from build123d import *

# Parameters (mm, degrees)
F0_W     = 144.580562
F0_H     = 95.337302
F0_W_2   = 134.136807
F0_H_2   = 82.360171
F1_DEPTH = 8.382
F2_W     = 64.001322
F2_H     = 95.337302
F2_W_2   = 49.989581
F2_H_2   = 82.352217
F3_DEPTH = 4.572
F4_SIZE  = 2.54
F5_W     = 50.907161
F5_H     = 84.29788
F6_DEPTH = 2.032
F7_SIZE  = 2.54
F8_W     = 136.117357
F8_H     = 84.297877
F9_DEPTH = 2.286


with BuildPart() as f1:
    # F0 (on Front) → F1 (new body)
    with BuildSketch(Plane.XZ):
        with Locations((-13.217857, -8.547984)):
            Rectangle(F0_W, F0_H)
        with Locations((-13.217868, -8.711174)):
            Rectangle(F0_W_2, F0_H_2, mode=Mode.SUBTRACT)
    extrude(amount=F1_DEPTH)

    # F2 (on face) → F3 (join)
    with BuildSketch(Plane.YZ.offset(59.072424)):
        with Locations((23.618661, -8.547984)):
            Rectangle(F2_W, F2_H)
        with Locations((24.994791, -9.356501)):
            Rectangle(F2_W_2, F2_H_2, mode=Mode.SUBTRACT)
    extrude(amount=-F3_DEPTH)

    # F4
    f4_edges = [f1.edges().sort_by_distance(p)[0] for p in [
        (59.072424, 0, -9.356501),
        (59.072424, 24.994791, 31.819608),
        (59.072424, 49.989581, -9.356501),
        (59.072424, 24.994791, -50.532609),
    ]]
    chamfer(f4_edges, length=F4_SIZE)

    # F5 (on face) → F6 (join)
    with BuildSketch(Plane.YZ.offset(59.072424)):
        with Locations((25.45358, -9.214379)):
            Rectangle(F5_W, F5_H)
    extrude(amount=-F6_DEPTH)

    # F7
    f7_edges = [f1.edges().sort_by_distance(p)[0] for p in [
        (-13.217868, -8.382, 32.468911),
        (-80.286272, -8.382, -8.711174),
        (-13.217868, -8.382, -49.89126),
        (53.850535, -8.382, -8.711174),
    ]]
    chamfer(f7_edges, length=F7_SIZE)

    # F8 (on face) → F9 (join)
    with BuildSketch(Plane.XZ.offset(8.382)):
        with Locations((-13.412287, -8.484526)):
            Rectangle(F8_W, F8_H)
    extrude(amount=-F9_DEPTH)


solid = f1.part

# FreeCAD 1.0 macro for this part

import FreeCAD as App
import Part
import Sketcher
Q = App.Units.Quantity


def edges_at(feature, points):
    """Names of the edges that pass closest to the given points."""
    edges = feature.Shape.Edges
    near = lambda p: min(range(len(edges)), key=lambda i: edges[i].distToShape(Part.Vertex(*p))[0])
    return sorted({f"Edge{near(p) + 1}" for p in points})

doc = App.newDocument("Part")
body = doc.addObject("PartDesign::Body", "Body")

sketch1 = body.newObject("Sketcher::SketchObject", "Sketch")
sketch1.AttachmentSupport = (doc.getObject("XZ_Plane"), [""])
sketch1.MapMode = "FlatFace"
sketch1.addGeometry([
    Part.LineSegment(App.Vector(-85.508138, 39.120667, 0), App.Vector(-85.508138, -56.216635, 0)),
    Part.LineSegment(App.Vector(-85.508138, -56.216635, 0), App.Vector(59.072424, -56.216635, 0)),
    Part.LineSegment(App.Vector(59.072424, -56.216635, 0), App.Vector(59.072424, 39.120667, 0)),
    Part.LineSegment(App.Vector(59.072424, 39.120667, 0), App.Vector(-85.508138, 39.120667, 0)),
    Part.LineSegment(App.Vector(53.850535, -49.891259, 0), App.Vector(-80.286271, -49.891259, 0)),
    Part.LineSegment(App.Vector(-80.286271, -49.891259, 0), App.Vector(-80.286271, 32.468911, 0)),
    Part.LineSegment(App.Vector(-80.286271, 32.468911, 0), App.Vector(53.850535, 32.468911, 0)),
    Part.LineSegment(App.Vector(53.850535, 32.468911, 0), App.Vector(53.850535, -49.891259, 0)),
], False)
sketch1.addConstraint([
    Sketcher.Constraint("Coincident", 0, 2, 1, 1),
    Sketcher.Constraint("Coincident", 1, 2, 2, 1),
    Sketcher.Constraint("Coincident", 2, 2, 3, 1),
    Sketcher.Constraint("Coincident", 3, 2, 0, 1),
    Sketcher.Constraint("Coincident", 4, 2, 5, 1),
    Sketcher.Constraint("Coincident", 5, 2, 6, 1),
    Sketcher.Constraint("Coincident", 6, 2, 7, 1),
    Sketcher.Constraint("Coincident", 7, 2, 4, 1),
    Sketcher.Constraint("Vertical", 0),
    Sketcher.Constraint("Horizontal", 1),
    Sketcher.Constraint("Vertical", 2),
    Sketcher.Constraint("Horizontal", 3),
    Sketcher.Constraint("Horizontal", 4),
    Sketcher.Constraint("Vertical", 5),
    Sketcher.Constraint("Horizontal", 6),
    Sketcher.Constraint("Vertical", 7),
    Sketcher.Constraint("DistanceY", 0, 2, 0, 1, Q("95.337302 mm")),
    Sketcher.Constraint("DistanceX", -1, 1, 6, 2, Q("2.1200998 in")),
    Sketcher.Constraint("DistanceX", 1, 1, 1, 2, Q("144.580562 mm")),
    Sketcher.Constraint("DistanceY", 5, 1, 5, 2, Q("82.360171 mm")),
    Sketcher.Constraint("DistanceX", 4, 2, 4, 1, Q("134.136807 mm")),
    Sketcher.Constraint("DistanceX", 0, 2, -1, 1, Q("85.508138 mm")),
    Sketcher.Constraint("DistanceY", 4, 2, -1, 1, Q("49.891259 mm")),
    Sketcher.Constraint("DistanceY", 0, 2, -1, 1, Q("56.216635 mm")),
])
pad1 = body.newObject("PartDesign::Pad", "Pad")
pad1.Profile = sketch1
pad1.Length = Q("0.33 in")

sketch2 = body.newObject("Sketcher::SketchObject", "Sketch001")
sketch2.AttachmentSupport = (doc.getObject("YZ_Plane"), [""])
sketch2.MapMode = "FlatFace"
sketch2.AttachmentOffset = App.Placement(App.Vector(0, 0, 59.072424), App.Rotation())
sketch2.addGeometry([
    Part.LineSegment(App.Vector(-8.382, 39.120667, 0), App.Vector(-8.382, -56.216635, 0)),
    Part.LineSegment(App.Vector(-8.382, -56.216635, 0), App.Vector(55.619322, -56.216635, 0)),
    Part.LineSegment(App.Vector(55.619322, -56.216635, 0), App.Vector(55.619322, 39.120667, 0)),
    Part.LineSegment(App.Vector(55.619322, 39.120667, 0), App.Vector(-8.382, 39.120667, 0)),
    Part.LineSegment(App.Vector(49.989581, -50.532609, 0), App.Vector(0, -50.532609, 0)),
    Part.LineSegment(App.Vector(0, -50.532609, 0), App.Vector(0, 31.819608, 0)),
    Part.LineSegment(App.Vector(0, 31.819608, 0), App.Vector(49.989581, 31.819608, 0)),
    Part.LineSegment(App.Vector(49.989581, 31.819608, 0), App.Vector(49.989581, -50.532609, 0)),
], False)
sketch2.addConstraint([
    Sketcher.Constraint("Coincident", 0, 2, 1, 1),
    Sketcher.Constraint("Coincident", 1, 2, 2, 1),
    Sketcher.Constraint("Coincident", 2, 2, 3, 1),
    Sketcher.Constraint("Coincident", 3, 2, 0, 1),
    Sketcher.Constraint("Coincident", 4, 2, 5, 1),
    Sketcher.Constraint("Coincident", 5, 2, 6, 1),
    Sketcher.Constraint("Coincident", 6, 2, 7, 1),
    Sketcher.Constraint("Coincident", 7, 2, 4, 1),
    Sketcher.Constraint("Vertical", 0),
    Sketcher.Constraint("Horizontal", 1),
    Sketcher.Constraint("Vertical", 2),
    Sketcher.Constraint("Horizontal", 3),
    Sketcher.Constraint("Horizontal", 4),
    Sketcher.Constraint("Vertical", 5),
    Sketcher.Constraint("Horizontal", 6),
    Sketcher.Constraint("Vertical", 7),
    Sketcher.Constraint("PointOnObject", 4, 2, -2),
    Sketcher.Constraint("DistanceX", 0, 2, -1, 1, Q("0.33 in")),
    Sketcher.Constraint("DistanceY", 0, 2, 0, 1, Q("95.337302 mm")),
    Sketcher.Constraint("DistanceX", 1, 1, 1, 2, Q("64.001322 mm")),
    Sketcher.Constraint("DistanceX", 4, 2, 4, 1, Q("49.989581 mm")),
    Sketcher.Constraint("DistanceY", 5, 1, 5, 2, Q("82.352217 mm")),
    Sketcher.Constraint("DistanceY", 4, 2, -1, 1, Q("50.532609 mm")),
    Sketcher.Constraint("DistanceY", 5, 2, 3, 2, Q("7.301059 mm")),
])
pad2 = body.newObject("PartDesign::Pad", "Pad001")
pad2.Profile = sketch2
pad2.Length = Q("0.18 in")
pad2.Reversed = True
doc.recompute()

chamfer = body.newObject("PartDesign::Chamfer", "Chamfer")
chamfer.Base = (pad2, edges_at(pad2, [
    (59.072, 0, -9.357),
    (59.072, 24.995, 31.82),
    (59.072, 49.99, -9.357),
    (59.072, 24.995, -50.533),
]))
chamfer.Size = Q("0.1 in")

sketch3 = body.newObject("Sketcher::SketchObject", "Sketch002")
sketch3.AttachmentSupport = (doc.getObject("YZ_Plane"), [""])
sketch3.MapMode = "FlatFace"
sketch3.AttachmentOffset = App.Placement(App.Vector(0, 0, 59.072424), App.Rotation())
sketch3.addGeometry([
    Part.LineSegment(App.Vector(0, 32.934561, 0), App.Vector(0, -51.363319, 0)),
    Part.LineSegment(App.Vector(0, -51.363319, 0), App.Vector(50.907161, -51.363319, 0)),
    Part.LineSegment(App.Vector(50.907161, -51.363319, 0), App.Vector(50.907161, 32.934561, 0)),
    Part.LineSegment(App.Vector(50.907161, 32.934561, 0), App.Vector(0, 32.934561, 0)),
], False)
sketch3.addConstraint([
    Sketcher.Constraint("Coincident", 0, 2, 1, 1),
    Sketcher.Constraint("Coincident", 1, 2, 2, 1),
    Sketcher.Constraint("Coincident", 2, 2, 3, 1),
    Sketcher.Constraint("Coincident", 3, 2, 0, 1),
    Sketcher.Constraint("Vertical", 0),
    Sketcher.Constraint("Horizontal", 1),
    Sketcher.Constraint("Vertical", 2),
    Sketcher.Constraint("Horizontal", 3),
    Sketcher.Constraint("PointOnObject", 0, 2, -2),
    Sketcher.Constraint("DistanceX", 1, 1, 1, 2, Q("50.907161 mm")),
    Sketcher.Constraint("DistanceY", 0, 2, 0, 1, Q("84.29788 mm")),
    Sketcher.Constraint("DistanceY", 0, 2, -1, 1, Q("51.363319 mm")),
])
pad3 = body.newObject("PartDesign::Pad", "Pad002")
pad3.Profile = sketch3
pad3.Length = Q("0.08 in")
pad3.Reversed = True
doc.recompute()

chamfer2 = body.newObject("PartDesign::Chamfer", "Chamfer001")
chamfer2.Base = (pad3, edges_at(pad3, [
    (-13.218, -8.382, 32.469),
    (-80.286, -8.382, -8.711),
    (-13.218, -8.382, -49.891),
    (53.851, -8.382, -8.711),
]))
chamfer2.Size = Q("0.1 in")

sketch4 = body.newObject("Sketcher::SketchObject", "Sketch003")
sketch4.AttachmentSupport = (doc.getObject("XZ_Plane"), [""])
sketch4.MapMode = "FlatFace"
sketch4.AttachmentOffset = App.Placement(App.Vector(0, 0, 0.33 * 25.4), App.Rotation())
sketch4.addGeometry([
    Part.LineSegment(App.Vector(-81.470966, 33.664412, 0), App.Vector(-81.470966, -50.633465, 0)),
    Part.LineSegment(App.Vector(-81.470966, -50.633465, 0), App.Vector(54.646392, -50.633465, 0)),
    Part.LineSegment(App.Vector(54.646392, -50.633465, 0), App.Vector(54.646392, 33.664412, 0)),
    Part.LineSegment(App.Vector(54.646392, 33.664412, 0), App.Vector(-81.470966, 33.664412, 0)),
], False)
sketch4.addConstraint([
    Sketcher.Constraint("Coincident", 0, 2, 1, 1),
    Sketcher.Constraint("Coincident", 1, 2, 2, 1),
    Sketcher.Constraint("Coincident", 2, 2, 3, 1),
    Sketcher.Constraint("Coincident", 3, 2, 0, 1),
    Sketcher.Constraint("Vertical", 0),
    Sketcher.Constraint("Horizontal", 1),
    Sketcher.Constraint("Vertical", 2),
    Sketcher.Constraint("Horizontal", 3),
    Sketcher.Constraint("DistanceX", 1, 1, 1, 2, Q("136.117357 mm")),
    Sketcher.Constraint("DistanceY", 0, 2, 0, 1, Q("84.297877 mm")),
    Sketcher.Constraint("DistanceX", -1, 1, 1, 2, Q("54.646392 mm")),
    Sketcher.Constraint("DistanceY", 0, 2, -1, 1, Q("50.633465 mm")),
])
pad4 = body.newObject("PartDesign::Pad", "Pad003")
pad4.Profile = sketch4
pad4.Length = Q("0.09 in")
pad4.Reversed = True

doc.recompute()
